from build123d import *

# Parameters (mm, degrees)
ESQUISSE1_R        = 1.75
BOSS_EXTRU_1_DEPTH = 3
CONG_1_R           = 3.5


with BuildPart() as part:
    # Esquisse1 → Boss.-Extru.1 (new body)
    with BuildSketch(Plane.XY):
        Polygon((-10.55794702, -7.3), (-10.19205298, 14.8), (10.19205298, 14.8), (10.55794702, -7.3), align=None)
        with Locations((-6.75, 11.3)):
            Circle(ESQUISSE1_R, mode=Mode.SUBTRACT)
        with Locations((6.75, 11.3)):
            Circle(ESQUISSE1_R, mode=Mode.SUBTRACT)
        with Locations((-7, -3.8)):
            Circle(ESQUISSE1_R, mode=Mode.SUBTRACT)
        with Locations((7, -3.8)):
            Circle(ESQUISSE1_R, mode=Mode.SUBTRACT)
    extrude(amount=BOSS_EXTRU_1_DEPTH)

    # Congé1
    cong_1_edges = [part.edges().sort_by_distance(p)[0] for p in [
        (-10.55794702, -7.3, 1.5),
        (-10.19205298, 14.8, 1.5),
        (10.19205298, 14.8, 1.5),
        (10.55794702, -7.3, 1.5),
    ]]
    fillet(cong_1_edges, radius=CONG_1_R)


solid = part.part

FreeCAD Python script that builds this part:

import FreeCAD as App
import Part
import Sketcher
Q = App.Units.Quantity


def edges_at(feature, points):
    """Names of the edges that pass closest to the given points."""
    edges = feature.Shape.Edges
    near = lambda p: min(range(len(edges)), key=lambda i: edges[i].distToShape(Part.Vertex(*p))[0])
    return sorted({f"Edge{near(p) + 1}" for p in points})


def add_polygon(sketch, points):
    """Adds a closed chain of lines whose ends are joined by coincident constraints."""
    first, n = sketch.GeometryCount, len(points)
    for a, b in zip(points, points[1:] + points[:1]):
        sketch.addGeometry(Part.LineSegment(App.Vector(*a, 0), App.Vector(*b, 0)), False)
    for i in range(n):
        sketch.addConstraint(Sketcher.Constraint("Coincident", first + i, 2, first + (i + 1) % n, 1))

doc = App.newDocument("Part")
body = doc.addObject("PartDesign::Body", "Body")

# Sketch on XY plane
sketch1 = doc.addObject("Sketcher::SketchObject", "Sketch")
body.addObject(sketch1)
sketch1.AttachmentSupport = (doc.XY_Plane, [""])
sketch1.MapMode = "FlatFace"
add_polygon(sketch1, [(-10.2, 14.8), (-10.6, -7.3), (10.6, -7.3), (10.2, 14.8)])  # lines 0-3
sketch1.addGeometry(Part.Circle(App.Vector(7, -3.8, 0), App.Vector(0, 0, 1), 1.8), False)  # 4
sketch1.addGeometry(Part.Circle(App.Vector(-7, -3.8, 0), App.Vector(0, 0, 1), 1.8), False)  # 5
sketch1.addGeometry(Part.Circle(App.Vector(6.8, 11.3, 0), App.Vector(0, 0, 1), 1.8), False)  # 6
sketch1.addGeometry(Part.Circle(App.Vector(-6.8, 11.3, 0), App.Vector(0, 0, 1), 1.8), False)  # 7
sketch1.addConstraint([
    Sketcher.Constraint("Horizontal", 1),
    Sketcher.Constraint("Horizontal", 3),
    Sketcher.Constraint("Equal", 4, 5),
    Sketcher.Constraint("Equal", 5, 6),
    Sketcher.Constraint("Equal", 6, 7),
    Sketcher.Constraint("Symmetric", 4, 3, 5, 3, -2),
    Sketcher.Constraint("Symmetric", 6, 3, 7, 3, -2),
    Sketcher.Constraint("Equal", 0, 2),
    Sketcher.Constraint("Diameter", 4, Q("3.5 mm")),
    Sketcher.Constraint("DistanceX", -1, 1, 4, 3, Q("7 mm")),
    Sketcher.Constraint("DistanceY", 4, 3, -1, 1, Q("3.8 mm")),
    Sketcher.Constraint("DistanceY", -1, 1, 6, 3, Q("11.3 mm")),
    Sketcher.Constraint("DistanceY", 0, 2, -1, 1, Q("7.3 mm")),
    Sketcher.Constraint("DistanceY", -1, 1, 2, 2, Q("14.8 mm")),
    Sketcher.Constraint("DistanceX", 7, 3, 6, 3, Q("13.5 mm")),
    Sketcher.Constraint("Distance", 0, Q("22.103029 mm")),
    Sketcher.Constraint("DistanceX", 1, 1, 1, 2, Q("21.115894 mm")),
    Sketcher.Constraint("DistanceX", 0, 2, -1, 1, Q("10.557947 mm")),
])
pad1 = doc.addObject("PartDesign::Pad", "Pad")
body.addObject(pad1)
pad1.Profile = sketch1
pad1.Length = 3
doc.recompute()

fillet = doc.addObject("PartDesign::Fillet", "Fillet")
body.addObject(fillet)
fillet.Base = (pad1, edges_at(pad1, [
    (-10.558, -7.3, 1.5),
    (-10.192, 14.8, 1.5),
    (10.192, 14.8, 1.5),
    (10.558, -7.3, 1.5),
]))
fillet.Radius = 3.5

doc.recompute()
